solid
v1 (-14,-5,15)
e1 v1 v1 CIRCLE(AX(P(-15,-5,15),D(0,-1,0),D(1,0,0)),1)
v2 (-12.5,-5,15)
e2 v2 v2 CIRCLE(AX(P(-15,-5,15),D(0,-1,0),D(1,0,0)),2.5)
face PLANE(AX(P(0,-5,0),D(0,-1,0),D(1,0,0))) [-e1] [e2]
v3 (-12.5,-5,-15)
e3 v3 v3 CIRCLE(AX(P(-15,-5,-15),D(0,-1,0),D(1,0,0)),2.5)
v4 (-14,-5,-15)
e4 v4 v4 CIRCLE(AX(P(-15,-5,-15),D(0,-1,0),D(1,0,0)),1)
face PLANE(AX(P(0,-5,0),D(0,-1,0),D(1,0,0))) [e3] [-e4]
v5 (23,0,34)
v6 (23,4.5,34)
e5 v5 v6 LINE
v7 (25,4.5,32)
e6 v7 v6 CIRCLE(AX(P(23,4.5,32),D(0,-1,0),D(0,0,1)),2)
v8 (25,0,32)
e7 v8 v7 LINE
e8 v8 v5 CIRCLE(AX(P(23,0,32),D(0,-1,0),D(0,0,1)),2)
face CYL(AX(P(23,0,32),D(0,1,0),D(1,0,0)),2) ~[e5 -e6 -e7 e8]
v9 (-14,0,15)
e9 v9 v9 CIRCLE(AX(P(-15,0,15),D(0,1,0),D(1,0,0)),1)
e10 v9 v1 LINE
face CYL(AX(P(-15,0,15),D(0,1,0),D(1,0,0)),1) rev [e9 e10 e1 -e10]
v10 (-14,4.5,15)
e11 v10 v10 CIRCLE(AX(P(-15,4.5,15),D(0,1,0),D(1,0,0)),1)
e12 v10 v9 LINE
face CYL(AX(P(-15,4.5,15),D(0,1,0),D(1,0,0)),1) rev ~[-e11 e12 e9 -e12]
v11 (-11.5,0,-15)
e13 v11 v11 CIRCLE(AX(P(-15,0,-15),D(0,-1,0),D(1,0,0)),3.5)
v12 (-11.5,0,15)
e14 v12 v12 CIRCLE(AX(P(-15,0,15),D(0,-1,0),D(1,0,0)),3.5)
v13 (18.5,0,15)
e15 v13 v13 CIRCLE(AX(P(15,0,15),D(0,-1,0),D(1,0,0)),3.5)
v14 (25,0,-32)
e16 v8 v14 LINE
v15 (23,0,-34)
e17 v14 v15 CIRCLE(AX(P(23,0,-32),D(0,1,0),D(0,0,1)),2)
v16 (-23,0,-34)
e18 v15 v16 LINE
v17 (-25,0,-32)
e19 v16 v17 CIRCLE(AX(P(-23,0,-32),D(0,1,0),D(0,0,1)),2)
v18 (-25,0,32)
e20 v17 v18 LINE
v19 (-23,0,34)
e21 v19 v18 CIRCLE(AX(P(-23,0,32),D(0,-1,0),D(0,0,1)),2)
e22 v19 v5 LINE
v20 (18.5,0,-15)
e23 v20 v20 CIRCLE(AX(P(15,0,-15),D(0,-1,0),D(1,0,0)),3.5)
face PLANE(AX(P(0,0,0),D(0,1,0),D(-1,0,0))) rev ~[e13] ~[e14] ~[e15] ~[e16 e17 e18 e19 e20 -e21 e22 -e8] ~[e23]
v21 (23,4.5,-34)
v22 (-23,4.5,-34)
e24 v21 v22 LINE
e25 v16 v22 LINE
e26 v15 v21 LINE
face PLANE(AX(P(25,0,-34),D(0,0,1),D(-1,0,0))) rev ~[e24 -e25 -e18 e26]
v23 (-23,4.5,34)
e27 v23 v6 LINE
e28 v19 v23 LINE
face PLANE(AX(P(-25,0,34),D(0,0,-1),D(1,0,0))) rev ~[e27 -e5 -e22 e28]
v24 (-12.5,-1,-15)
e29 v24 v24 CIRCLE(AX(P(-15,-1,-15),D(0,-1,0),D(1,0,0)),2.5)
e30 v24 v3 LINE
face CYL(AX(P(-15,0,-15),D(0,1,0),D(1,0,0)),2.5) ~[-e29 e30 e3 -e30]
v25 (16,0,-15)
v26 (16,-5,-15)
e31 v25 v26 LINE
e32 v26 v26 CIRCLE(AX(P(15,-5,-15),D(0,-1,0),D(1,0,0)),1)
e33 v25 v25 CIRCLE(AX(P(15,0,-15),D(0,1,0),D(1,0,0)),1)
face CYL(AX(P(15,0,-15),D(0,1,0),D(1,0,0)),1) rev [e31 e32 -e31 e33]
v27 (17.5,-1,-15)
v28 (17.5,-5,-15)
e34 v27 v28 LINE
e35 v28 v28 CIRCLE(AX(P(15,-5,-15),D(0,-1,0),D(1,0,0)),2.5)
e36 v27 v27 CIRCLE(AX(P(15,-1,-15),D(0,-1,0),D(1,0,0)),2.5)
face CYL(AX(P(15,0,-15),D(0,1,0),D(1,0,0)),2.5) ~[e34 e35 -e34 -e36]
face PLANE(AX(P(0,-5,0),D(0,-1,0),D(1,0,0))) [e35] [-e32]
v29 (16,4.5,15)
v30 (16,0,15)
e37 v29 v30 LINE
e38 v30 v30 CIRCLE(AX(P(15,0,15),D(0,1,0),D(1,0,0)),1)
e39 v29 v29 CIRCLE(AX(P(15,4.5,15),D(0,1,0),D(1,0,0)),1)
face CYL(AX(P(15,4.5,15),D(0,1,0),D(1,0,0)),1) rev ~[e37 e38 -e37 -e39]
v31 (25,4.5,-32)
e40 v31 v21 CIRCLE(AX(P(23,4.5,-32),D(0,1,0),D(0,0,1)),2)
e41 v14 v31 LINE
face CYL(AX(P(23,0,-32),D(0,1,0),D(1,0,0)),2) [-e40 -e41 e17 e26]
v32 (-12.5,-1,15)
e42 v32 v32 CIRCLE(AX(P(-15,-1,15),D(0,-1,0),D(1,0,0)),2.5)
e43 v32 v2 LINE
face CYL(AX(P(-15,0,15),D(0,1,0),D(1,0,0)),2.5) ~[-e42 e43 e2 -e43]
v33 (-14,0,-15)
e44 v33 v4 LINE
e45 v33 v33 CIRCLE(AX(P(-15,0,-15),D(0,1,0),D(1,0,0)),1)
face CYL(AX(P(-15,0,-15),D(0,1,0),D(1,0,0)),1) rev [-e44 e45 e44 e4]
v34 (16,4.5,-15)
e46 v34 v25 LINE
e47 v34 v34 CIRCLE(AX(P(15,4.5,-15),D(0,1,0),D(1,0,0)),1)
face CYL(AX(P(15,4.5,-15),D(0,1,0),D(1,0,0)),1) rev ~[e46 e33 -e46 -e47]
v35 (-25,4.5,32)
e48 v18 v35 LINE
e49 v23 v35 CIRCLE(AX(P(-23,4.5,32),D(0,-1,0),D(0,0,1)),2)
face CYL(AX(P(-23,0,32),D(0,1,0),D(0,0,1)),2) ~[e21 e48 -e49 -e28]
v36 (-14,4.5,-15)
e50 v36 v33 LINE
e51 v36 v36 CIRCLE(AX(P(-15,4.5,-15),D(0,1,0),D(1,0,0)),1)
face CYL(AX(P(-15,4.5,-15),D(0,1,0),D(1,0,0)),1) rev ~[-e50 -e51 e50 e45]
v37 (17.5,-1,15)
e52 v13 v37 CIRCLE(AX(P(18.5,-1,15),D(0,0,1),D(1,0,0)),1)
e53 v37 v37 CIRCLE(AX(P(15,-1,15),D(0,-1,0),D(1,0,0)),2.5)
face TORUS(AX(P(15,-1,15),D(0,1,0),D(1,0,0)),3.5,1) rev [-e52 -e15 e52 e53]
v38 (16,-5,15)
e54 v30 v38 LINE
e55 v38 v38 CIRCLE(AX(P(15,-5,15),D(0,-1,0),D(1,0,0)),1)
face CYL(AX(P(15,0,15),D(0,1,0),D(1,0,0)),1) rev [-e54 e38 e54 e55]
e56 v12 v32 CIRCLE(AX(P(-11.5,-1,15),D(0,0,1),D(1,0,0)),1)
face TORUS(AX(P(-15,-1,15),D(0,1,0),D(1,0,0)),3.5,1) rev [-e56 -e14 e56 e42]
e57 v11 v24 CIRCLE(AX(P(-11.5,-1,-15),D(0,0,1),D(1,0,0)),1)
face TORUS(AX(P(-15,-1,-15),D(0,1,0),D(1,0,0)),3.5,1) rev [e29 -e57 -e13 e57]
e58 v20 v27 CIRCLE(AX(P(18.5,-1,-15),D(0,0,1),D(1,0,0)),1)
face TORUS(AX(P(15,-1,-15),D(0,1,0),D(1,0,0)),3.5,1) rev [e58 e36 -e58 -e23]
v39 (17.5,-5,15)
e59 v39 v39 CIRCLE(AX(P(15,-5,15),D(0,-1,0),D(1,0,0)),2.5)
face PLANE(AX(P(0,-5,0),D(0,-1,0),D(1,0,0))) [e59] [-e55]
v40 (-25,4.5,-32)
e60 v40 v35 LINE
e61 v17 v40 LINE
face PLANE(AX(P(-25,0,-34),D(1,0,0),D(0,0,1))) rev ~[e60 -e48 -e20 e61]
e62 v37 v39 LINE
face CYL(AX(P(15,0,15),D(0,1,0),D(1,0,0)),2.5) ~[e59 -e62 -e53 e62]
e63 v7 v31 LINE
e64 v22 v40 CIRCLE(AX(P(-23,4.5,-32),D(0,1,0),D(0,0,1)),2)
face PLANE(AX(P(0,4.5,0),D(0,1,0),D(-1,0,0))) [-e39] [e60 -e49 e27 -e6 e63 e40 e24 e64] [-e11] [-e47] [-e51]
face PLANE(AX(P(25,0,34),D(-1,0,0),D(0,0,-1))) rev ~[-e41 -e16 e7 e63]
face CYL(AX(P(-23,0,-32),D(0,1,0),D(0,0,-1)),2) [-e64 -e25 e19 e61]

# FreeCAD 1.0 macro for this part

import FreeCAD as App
import Part
import Sketcher

V = App.Vector
Q = App.Units.Quantity


def edges_at(feature, points):
    """Names of the edges that pass closest to the given points."""
    edges = feature.Shape.Edges
    near = lambda p: min(range(len(edges)), key=lambda i: edges[i].distToShape(Part.Vertex(*p))[0])
    return sorted({f"Edge{near(p) + 1}" for p in points})

doc = App.newDocument("Part")
body = doc.addObject("PartDesign::Body", "Body")

# Sketch on XZ plane
sketch1 = doc.addObject("Sketcher::SketchObject", "Sketch")
body.addObject(sketch1)
sketch1.AttachmentSupport = (doc.XZ_Plane, [""])
sketch1.MapMode = "FlatFace"
sketch1.addGeometry([
    Part.LineSegment(V(25, 34, 0), V(25, -34, 0)),
    Part.LineSegment(V(25, -34, 0), V(-25, -34, 0)),
    Part.LineSegment(V(-25, -34, 0), V(-25, 34, 0)),
    Part.LineSegment(V(-25, 34, 0), V(25, 34, 0)),
], False)
sketch1.addConstraint([
    Sketcher.Constraint("Coincident", 0, 2, 1, 1),
    Sketcher.Constraint("Coincident", 1, 2, 2, 1),
    Sketcher.Constraint("Coincident", 2, 2, 3, 1),
    Sketcher.Constraint("Coincident", 3, 2, 0, 1),
    Sketcher.Constraint("Vertical", 0),
    Sketcher.Constraint("Horizontal", 1),
    Sketcher.Constraint("Vertical", 2),
    Sketcher.Constraint("Horizontal", 3),
    Sketcher.Constraint("Symmetric", 0, 2, 2, 2, -1, 1),
    Sketcher.Constraint("DistanceX", 1, 2, 1, 1, Q("50 mm")),
    Sketcher.Constraint("DistanceY", 0, 2, 0, 1, Q("68 mm")),
])
pad1 = doc.addObject("PartDesign::Pad", "Pad")
body.addObject(pad1)
pad1.Profile = sketch1
pad1.Length = 4.5
pad1.Reversed = True

# Sketch on XZ plane
sketch2 = doc.addObject("Sketcher::SketchObject", "Sketch001")
body.addObject(sketch2)
sketch2.AttachmentSupport = (doc.XZ_Plane, [""])
sketch2.MapMode = "FlatFace"
sketch2.AttachmentOffset = App.Placement(V(0, 0, -4.5), App.Rotation())
sketch2.addGeometry([
    Part.Circle(V(-15, -15, 0), V(0, 0, 1), 1),
    Part.Circle(V(15, -15, 0), V(0, 0, 1), 1),
    Part.Circle(V(15, 15, 0), V(0, 0, 1), 1),
    Part.Circle(V(-15, 15, 0), V(0, 0, 1), 1),
], False)
sketch2.addConstraint([
    Sketcher.Constraint("Equal", 0, 1),
    Sketcher.Constraint("Equal", 1, 2),
    Sketcher.Constraint("Equal", 2, 3),
    Sketcher.Constraint("Symmetric", 0, 3, 2, 3, -1, 1),
    Sketcher.Constraint("Symmetric", 1, 3, 3, 3, -1, 1),
    Sketcher.Constraint("Symmetric", 0, 3, 1, 3, -2),
    Sketcher.Constraint("Diameter", 0, Q("2 mm")),
    Sketcher.Constraint("DistanceX", 0, 3, -1, 1, Q("15 mm")),
    Sketcher.Constraint("DistanceY", 0, 3, -1, 1, Q("15 mm")),
])
pocket1 = doc.addObject("PartDesign::Pocket", "Pocket")
body.addObject(pocket1)
pocket1.Profile = sketch2
pocket1.Length = 4.5
pocket1.Reversed = True

# Sketch on XZ plane
sketch3 = doc.addObject("Sketcher::SketchObject", "Sketch002")
body.addObject(sketch3)
sketch3.AttachmentSupport = (doc.XZ_Plane, [""])
sketch3.MapMode = "FlatFace"
sketch3.addGeometry([
    Part.Circle(V(15, 15, 0), V(0, 0, 1), 2.5),  # 0
    Part.Circle(V(15, 15, 0), V(0, 0, 1), 1),  # 1
    Part.Circle(V(-15, 15, 0), V(0, 0, 1), 2.5),  # 2
    Part.Circle(V(-15, 15, 0), V(0, 0, 1), 1),  # 3
    Part.Circle(V(-15, -15, 0), V(0, 0, 1), 2.5),  # 4
    Part.Circle(V(-15, -15, 0), V(0, 0, 1), 1),  # 5
    Part.Circle(V(15, -15, 0), V(0, 0, 1), 2.5),  # 6
    Part.Circle(V(15, -15, 0), V(0, 0, 1), 1),  # 7
], False)
sketch3.addConstraint([
    Sketcher.Constraint("Coincident", 1, 3, 0, 3),
    Sketcher.Constraint("Coincident", 3, 3, 2, 3),
    Sketcher.Constraint("Coincident", 5, 3, 4, 3),
    Sketcher.Constraint("Coincident", 7, 3, 6, 3),
    Sketcher.Constraint("Equal", 0, 2),
    Sketcher.Constraint("Equal", 1, 3),
    Sketcher.Constraint("Equal", 2, 4),
    Sketcher.Constraint("Equal", 3, 5),
    Sketcher.Constraint("Equal", 4, 6),
    Sketcher.Constraint("Equal", 5, 7),
    Sketcher.Constraint("Symmetric", 0, 3, 4, 3, -1, 1),
    Sketcher.Constraint("Symmetric", 2, 3, 6, 3, -1, 1),
    Sketcher.Constraint("Symmetric", 0, 3, 2, 3, -2),
    Sketcher.Constraint("Diameter", 0, Q("5 mm")),
    Sketcher.Constraint("Diameter", 1, Q("2 mm")),
    Sketcher.Constraint("DistanceX", -1, 1, 0, 3, Q("15 mm")),
    Sketcher.Constraint("DistanceY", -1, 1, 0, 3, Q("15 mm")),
])
pad2 = doc.addObject("PartDesign::Pad", "Pad001")
body.addObject(pad2)
pad2.Profile = sketch3
pad2.Length = 5
doc.recompute()

fillet = doc.addObject("PartDesign::Fillet", "Fillet")
body.addObject(fillet)
fillet.Base = (pad2, edges_at(pad2, [
    (-25, 2.25, 34),
    (25, 2.25, 34),
    (25, 2.25, -34),
    (-25, 2.25, -34),
]))
fillet.Radius = 2
doc.recompute()

fillet2 = doc.addObject("PartDesign::Fillet", "Fillet001")
body.addObject(fillet2)
fillet2.Base = (fillet, edges_at(fillet, [
    (12.5, 0, -15),
    (12.5, 0, 15),
    (-17.5, 0, -15),
    (-17.5, 0, 15),
]))
fillet2.Radius = 1

doc.recompute()
